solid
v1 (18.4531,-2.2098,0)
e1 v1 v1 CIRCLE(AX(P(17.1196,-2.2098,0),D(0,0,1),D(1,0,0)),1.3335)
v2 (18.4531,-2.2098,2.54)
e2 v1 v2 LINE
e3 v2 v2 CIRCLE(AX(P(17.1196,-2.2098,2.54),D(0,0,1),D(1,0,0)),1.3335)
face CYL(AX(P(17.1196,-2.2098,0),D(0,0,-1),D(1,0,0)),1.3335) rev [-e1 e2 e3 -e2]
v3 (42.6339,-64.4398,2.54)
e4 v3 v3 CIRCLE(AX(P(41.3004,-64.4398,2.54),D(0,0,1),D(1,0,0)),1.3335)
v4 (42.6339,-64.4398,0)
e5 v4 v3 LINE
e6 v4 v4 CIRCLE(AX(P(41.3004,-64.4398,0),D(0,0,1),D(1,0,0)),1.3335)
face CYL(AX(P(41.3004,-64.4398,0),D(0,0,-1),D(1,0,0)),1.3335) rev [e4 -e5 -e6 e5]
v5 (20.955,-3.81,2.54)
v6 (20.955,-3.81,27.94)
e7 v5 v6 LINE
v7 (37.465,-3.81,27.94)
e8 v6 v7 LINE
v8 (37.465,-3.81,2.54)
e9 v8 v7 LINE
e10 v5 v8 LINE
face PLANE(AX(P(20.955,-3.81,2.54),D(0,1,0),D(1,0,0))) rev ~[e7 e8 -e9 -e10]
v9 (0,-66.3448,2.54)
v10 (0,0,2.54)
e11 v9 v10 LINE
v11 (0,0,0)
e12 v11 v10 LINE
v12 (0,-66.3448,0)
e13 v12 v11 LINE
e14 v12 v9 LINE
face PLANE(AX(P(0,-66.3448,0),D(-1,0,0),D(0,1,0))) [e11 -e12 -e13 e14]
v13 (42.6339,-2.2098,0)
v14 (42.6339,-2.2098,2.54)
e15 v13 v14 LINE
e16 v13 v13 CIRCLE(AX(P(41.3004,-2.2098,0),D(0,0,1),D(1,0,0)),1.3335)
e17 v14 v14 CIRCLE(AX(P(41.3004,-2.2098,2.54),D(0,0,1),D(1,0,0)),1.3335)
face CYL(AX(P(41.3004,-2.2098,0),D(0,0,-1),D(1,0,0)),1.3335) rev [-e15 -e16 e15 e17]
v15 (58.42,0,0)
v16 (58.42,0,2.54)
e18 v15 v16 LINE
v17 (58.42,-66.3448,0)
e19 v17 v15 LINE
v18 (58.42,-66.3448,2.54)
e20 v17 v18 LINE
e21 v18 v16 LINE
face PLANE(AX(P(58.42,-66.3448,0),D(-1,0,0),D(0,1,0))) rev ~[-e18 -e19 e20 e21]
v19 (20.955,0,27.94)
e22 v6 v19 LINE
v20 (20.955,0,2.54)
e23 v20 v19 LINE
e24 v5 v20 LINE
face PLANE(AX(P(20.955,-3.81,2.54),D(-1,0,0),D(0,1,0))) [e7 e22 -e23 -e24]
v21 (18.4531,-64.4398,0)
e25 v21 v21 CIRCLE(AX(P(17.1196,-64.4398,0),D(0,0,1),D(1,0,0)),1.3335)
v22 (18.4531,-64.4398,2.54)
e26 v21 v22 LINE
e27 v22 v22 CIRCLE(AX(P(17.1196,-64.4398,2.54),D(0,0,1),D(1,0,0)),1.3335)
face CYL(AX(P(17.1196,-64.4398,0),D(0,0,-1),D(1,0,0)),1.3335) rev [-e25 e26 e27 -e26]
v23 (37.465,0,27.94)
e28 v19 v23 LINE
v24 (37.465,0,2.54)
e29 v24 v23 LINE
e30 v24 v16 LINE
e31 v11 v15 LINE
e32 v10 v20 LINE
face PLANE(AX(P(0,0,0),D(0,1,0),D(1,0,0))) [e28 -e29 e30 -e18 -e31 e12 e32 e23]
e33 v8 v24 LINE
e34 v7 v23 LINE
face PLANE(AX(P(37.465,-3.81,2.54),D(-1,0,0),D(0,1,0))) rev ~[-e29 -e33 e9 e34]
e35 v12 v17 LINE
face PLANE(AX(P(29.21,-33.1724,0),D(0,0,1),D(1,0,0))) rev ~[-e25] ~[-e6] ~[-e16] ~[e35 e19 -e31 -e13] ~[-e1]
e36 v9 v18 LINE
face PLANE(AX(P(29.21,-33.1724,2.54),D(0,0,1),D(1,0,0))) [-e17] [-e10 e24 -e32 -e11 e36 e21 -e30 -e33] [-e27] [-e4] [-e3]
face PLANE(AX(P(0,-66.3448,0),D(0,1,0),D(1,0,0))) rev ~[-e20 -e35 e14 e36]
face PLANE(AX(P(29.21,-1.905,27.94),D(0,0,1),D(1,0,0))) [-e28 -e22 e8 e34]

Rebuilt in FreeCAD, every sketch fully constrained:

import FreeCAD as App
import Part
import Sketcher
Q = App.Units.Quantity


def add_polygon(sketch, points):
    """Adds a closed chain of lines whose ends are joined by coincident constraints."""
    first, n = sketch.GeometryCount, len(points)
    for a, b in zip(points, points[1:] + points[:1]):
        sketch.addGeometry(Part.LineSegment(App.Vector(*a, 0), App.Vector(*b, 0)), False)
    for i in range(n):
        sketch.addConstraint(Sketcher.Constraint("Coincident", first + i, 2, first + (i + 1) % n, 1))

doc = App.newDocument("Part")
body = doc.addObject("PartDesign::Body", "Body")

# Sketch on XY plane
sketch1 = body.newObject("Sketcher::SketchObject", "Sketch")
sketch1.AttachmentSupport = (doc.getObject("XY_Plane"), [""])
sketch1.MapMode = "FlatFace"
add_polygon(sketch1, [(0, 0), (0, -66.3), (58.4, -66.3), (58.4, 0)])  # lines 0-3
sketch1.addGeometry(Part.Circle(App.Vector(17.1, -64.4, 0), App.Vector(0, 0, 1), 1.3), False)  # 4
sketch1.addGeometry(Part.Circle(App.Vector(41.3, -64.4, 0), App.Vector(0, 0, 1), 1.3), False)  # 5
sketch1.addGeometry(Part.Circle(App.Vector(17.1, -2.2, 0), App.Vector(0, 0, 1), 1.3), False)  # 6
sketch1.addGeometry(Part.Circle(App.Vector(41.3, -2.2, 0), App.Vector(0, 0, 1), 1.3), False)  # 7
sketch1.addConstraint([
    Sketcher.Constraint("Vertical", 0),
    Sketcher.Constraint("Horizontal", 1),
    Sketcher.Constraint("Vertical", 2),
    Sketcher.Constraint("Horizontal", 3),
    Sketcher.Constraint("Coincident", 3, 2, -1, 1),
    Sketcher.Constraint("Equal", 4, 5),
    Sketcher.Constraint("Equal", 5, 6),
    Sketcher.Constraint("Equal", 6, 7),
    Sketcher.Constraint("Horizontal", 4, 3, 5, 3),
    Sketcher.Constraint("Horizontal", 6, 3, 7, 3),
    Sketcher.Constraint("Vertical", 4, 3, 6, 3),
    Sketcher.Constraint("Vertical", 5, 3, 7, 3),
    Sketcher.Constraint("Diameter", 4, Q("0.105 in")),
    Sketcher.Constraint("DistanceX", 1, 1, 1, 2, Q("2.3 in")),
    Sketcher.Constraint("DistanceY", 0, 2, 0, 1, Q("2.612 in")),
    Sketcher.Constraint("DistanceY", 4, 3, 6, 3, Q("2.45 in")),
    Sketcher.Constraint("DistanceX", -1, 1, 4, 3, Q("0.674 in")),
    Sketcher.Constraint("DistanceY", 4, 3, -1, 1, Q("2.537 in")),
    Sketcher.Constraint("DistanceX", -1, 1, 5, 3, Q("1.626 in")),
])
pad1 = body.newObject("PartDesign::Pad", "Pad")
pad1.Profile = sketch1
pad1.Length = Q("0.1 in")

# Sketch on XY plane
sketch2 = body.newObject("Sketcher::SketchObject", "Sketch001")
sketch2.AttachmentSupport = (doc.getObject("XY_Plane"), [""])
sketch2.MapMode = "FlatFace"
sketch2.AttachmentOffset = App.Placement(App.Vector(0, 0, 0.1 * 25.4), App.Rotation())
add_polygon(sketch2, [(21, 0), (21, -3.8), (37.5, -3.8), (37.5, 0)])  # lines 0-3
sketch2.addConstraint([
    Sketcher.Constraint("Vertical", 0),
    Sketcher.Constraint("Horizontal", 1),
    Sketcher.Constraint("Vertical", 2),
    Sketcher.Constraint("Horizontal", 3),
    Sketcher.Constraint("PointOnObject", 2, 2, -1),
    Sketcher.Constraint("DistanceX", 1, 1, 1, 2, Q("0.65 in")),
    Sketcher.Constraint("DistanceY", 0, 2, 0, 1, Q("0.15 in")),
    Sketcher.Constraint("DistanceX", -1, 1, 0, 2, Q("0.825 in")),
])
pad2 = body.newObject("PartDesign::Pad", "Pad001")
pad2.Profile = sketch2
pad2.Length = Q("1 in")

doc.recompute()
